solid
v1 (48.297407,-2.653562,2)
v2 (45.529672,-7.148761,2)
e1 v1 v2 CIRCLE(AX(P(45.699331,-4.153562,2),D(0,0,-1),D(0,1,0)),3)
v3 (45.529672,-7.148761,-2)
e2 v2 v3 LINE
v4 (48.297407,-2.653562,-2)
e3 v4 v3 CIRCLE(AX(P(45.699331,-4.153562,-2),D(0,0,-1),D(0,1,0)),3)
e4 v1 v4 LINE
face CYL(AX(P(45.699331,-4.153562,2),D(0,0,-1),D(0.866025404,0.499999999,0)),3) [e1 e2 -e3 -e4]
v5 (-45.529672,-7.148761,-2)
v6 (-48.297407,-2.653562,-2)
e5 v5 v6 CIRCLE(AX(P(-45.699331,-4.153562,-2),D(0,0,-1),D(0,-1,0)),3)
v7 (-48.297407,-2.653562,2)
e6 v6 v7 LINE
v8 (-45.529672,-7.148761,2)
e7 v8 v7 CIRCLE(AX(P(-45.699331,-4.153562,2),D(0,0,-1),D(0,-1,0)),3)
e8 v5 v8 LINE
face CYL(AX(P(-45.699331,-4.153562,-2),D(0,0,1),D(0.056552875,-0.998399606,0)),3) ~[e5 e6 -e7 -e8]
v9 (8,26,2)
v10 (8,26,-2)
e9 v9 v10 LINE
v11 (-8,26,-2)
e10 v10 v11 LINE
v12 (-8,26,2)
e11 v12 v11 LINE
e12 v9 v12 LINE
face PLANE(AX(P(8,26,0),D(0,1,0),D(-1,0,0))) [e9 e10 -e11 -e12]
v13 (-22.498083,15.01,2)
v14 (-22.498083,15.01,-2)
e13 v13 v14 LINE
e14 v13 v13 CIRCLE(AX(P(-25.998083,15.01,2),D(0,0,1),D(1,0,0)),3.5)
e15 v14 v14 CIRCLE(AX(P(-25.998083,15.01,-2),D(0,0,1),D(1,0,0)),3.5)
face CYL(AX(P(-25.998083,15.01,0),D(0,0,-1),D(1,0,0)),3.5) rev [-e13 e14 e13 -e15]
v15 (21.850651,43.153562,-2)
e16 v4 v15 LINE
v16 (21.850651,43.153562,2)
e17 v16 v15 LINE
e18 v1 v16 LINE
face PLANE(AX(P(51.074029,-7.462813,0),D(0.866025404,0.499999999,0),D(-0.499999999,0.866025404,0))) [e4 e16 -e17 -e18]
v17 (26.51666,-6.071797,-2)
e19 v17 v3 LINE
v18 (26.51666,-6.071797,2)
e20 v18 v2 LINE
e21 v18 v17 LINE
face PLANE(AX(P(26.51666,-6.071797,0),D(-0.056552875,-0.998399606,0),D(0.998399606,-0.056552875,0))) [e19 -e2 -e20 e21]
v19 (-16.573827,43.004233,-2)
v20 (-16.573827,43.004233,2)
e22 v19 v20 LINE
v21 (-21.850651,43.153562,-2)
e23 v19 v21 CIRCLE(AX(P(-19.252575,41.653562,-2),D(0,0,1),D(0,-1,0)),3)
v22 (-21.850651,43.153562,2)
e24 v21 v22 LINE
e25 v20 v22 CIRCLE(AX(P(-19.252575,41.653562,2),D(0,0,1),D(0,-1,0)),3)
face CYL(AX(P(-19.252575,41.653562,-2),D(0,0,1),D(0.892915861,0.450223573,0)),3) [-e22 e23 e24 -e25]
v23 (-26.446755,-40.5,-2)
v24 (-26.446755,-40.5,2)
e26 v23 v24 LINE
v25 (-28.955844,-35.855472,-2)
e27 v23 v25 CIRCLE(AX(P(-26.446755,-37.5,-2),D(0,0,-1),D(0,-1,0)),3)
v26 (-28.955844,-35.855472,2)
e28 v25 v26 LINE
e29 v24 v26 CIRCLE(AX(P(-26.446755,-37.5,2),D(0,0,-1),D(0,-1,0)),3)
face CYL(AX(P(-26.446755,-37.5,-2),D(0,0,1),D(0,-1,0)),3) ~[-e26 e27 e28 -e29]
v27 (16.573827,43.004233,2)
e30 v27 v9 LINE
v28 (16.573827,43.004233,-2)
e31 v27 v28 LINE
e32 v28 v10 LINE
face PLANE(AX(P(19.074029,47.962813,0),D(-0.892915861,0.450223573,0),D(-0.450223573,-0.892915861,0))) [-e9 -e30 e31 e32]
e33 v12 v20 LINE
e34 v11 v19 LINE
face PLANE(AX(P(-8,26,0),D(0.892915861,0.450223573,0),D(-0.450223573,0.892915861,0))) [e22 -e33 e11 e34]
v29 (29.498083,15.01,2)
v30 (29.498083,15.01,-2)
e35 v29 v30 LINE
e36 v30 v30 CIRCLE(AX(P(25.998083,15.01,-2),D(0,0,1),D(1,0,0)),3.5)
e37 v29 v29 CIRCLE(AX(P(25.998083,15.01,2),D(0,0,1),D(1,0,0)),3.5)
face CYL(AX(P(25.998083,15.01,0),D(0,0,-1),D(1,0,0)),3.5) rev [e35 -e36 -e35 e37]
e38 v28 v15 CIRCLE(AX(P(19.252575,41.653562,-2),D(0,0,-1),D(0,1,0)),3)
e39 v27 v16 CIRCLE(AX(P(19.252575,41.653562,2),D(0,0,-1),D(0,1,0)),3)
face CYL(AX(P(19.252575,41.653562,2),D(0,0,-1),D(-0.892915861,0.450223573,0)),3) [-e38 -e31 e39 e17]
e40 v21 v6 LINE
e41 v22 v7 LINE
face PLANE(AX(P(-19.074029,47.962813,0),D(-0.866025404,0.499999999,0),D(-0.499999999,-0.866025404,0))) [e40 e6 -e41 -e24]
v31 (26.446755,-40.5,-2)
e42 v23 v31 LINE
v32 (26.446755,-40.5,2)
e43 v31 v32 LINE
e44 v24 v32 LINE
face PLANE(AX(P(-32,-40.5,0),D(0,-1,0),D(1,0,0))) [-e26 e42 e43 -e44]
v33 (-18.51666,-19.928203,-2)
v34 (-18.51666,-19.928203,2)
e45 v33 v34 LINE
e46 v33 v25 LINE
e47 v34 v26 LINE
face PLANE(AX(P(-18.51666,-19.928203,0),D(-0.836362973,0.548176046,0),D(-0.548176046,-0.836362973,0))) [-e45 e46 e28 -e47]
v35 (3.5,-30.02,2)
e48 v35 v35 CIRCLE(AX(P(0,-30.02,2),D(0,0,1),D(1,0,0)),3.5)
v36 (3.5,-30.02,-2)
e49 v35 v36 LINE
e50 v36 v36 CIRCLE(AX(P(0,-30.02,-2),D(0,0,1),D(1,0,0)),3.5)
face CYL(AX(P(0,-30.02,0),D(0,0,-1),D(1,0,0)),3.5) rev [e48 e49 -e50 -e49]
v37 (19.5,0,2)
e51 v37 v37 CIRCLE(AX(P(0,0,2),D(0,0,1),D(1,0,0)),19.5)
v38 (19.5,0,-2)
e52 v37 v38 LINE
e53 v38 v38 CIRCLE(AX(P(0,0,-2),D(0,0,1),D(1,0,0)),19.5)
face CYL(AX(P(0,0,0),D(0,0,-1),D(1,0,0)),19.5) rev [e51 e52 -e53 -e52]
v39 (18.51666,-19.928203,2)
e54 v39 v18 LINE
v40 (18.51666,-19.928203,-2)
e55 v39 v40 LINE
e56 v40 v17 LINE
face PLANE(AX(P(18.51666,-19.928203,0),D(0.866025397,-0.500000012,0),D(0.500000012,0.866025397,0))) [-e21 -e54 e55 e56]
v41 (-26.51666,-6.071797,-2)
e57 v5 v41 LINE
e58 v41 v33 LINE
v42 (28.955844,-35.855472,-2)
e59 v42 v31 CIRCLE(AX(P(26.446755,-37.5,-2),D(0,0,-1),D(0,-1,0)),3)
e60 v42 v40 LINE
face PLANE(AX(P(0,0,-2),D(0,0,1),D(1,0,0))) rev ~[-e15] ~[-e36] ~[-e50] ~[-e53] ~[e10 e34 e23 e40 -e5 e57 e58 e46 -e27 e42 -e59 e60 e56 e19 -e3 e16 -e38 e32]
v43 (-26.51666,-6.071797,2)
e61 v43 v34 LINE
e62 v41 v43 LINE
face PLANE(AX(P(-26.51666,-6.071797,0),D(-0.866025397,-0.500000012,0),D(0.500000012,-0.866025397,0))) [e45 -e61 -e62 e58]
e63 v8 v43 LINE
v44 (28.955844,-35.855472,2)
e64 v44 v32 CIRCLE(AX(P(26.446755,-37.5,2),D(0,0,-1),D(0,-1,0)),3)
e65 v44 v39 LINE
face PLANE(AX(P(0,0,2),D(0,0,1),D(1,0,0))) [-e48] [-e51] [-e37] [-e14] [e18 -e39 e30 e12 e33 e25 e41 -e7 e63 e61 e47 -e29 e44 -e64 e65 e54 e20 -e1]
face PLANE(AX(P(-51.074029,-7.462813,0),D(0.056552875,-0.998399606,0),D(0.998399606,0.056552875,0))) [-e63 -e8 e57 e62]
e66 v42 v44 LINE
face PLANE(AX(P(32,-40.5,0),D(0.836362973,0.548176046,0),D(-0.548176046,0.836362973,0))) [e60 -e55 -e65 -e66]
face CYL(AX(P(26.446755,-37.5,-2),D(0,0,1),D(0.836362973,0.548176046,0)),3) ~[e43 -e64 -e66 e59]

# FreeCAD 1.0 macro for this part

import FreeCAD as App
import Part
import Sketcher
Q = App.Units.Quantity


def edges_at(feature, points):
    """Names of the edges that pass closest to the given points."""
    edges = feature.Shape.Edges
    near = lambda p: min(range(len(edges)), key=lambda i: edges[i].distToShape(Part.Vertex(*p))[0])
    return sorted({f"Edge{near(p) + 1}" for p in points})

doc = App.newDocument("Part")
body = doc.addObject("PartDesign::Body", "Body")

sketch1 = body.newObject("Sketcher::SketchObject", "Sketch")
sketch1.AttachmentSupport = (doc.getObject("XY_Plane"), [""])
sketch1.MapMode = "FlatFace"
sketch1.addGeometry([
    Part.LineSegment(App.Vector(-8, 26, 0), App.Vector(-19.074029, 47.962813, 0)),
    Part.LineSegment(App.Vector(-19.074029, 47.962813, 0), App.Vector(-51.074029, -7.462813, 0)),
    Part.LineSegment(App.Vector(-51.074029, -7.462813, 0), App.Vector(-26.51666, -6.071797, 0)),
    Part.LineSegment(App.Vector(-26.51666, -6.071797, 0), App.Vector(-18.51666, -19.928203, 0)),
    Part.LineSegment(App.Vector(-18.51666, -19.928203, 0), App.Vector(-32, -40.5, 0)),
    Part.LineSegment(App.Vector(-32, -40.5, 0), App.Vector(32, -40.5, 0)),
    Part.LineSegment(App.Vector(32, -40.5, 0), App.Vector(18.51666, -19.928203, 0)),
    Part.LineSegment(App.Vector(18.51666, -19.928203, 0), App.Vector(26.51666, -6.071797, 0)),
    Part.LineSegment(App.Vector(26.51666, -6.071797, 0), App.Vector(51.074029, -7.462813, 0)),
    Part.LineSegment(App.Vector(51.074029, -7.462813, 0), App.Vector(19.074029, 47.962813, 0)),
    Part.LineSegment(App.Vector(19.074029, 47.962813, 0), App.Vector(8, 26, 0)),
    Part.LineSegment(App.Vector(8, 26, 0), App.Vector(-8, 26, 0)),
    Part.Circle(App.Vector(0, -30.02, 0), App.Vector(0, 0, 1), 3.5),
    Part.Circle(App.Vector(-25.998083, 15.01, 0), App.Vector(0, 0, 1), 3.5),
    Part.Circle(App.Vector(0, 0, 0), App.Vector(0, 0, 1), 19.5),
    Part.Circle(App.Vector(25.998083, 15.01, 0), App.Vector(0, 0, 1), 3.5),
], False)
sketch1.addConstraint([
    Sketcher.Constraint("Coincident", 0, 2, 1, 1),
    Sketcher.Constraint("Coincident", 1, 2, 2, 1),
    Sketcher.Constraint("Coincident", 2, 2, 3, 1),
    Sketcher.Constraint("Coincident", 3, 2, 4, 1),
    Sketcher.Constraint("Coincident", 4, 2, 5, 1),
    Sketcher.Constraint("Coincident", 5, 2, 6, 1),
    Sketcher.Constraint("Coincident", 6, 2, 7, 1),
    Sketcher.Constraint("Coincident", 7, 2, 8, 1),
    Sketcher.Constraint("Coincident", 8, 2, 9, 1),
    Sketcher.Constraint("Coincident", 9, 2, 10, 1),
    Sketcher.Constraint("Coincident", 10, 2, 11, 1),
    Sketcher.Constraint("Coincident", 11, 2, 0, 1),
    Sketcher.Constraint("Horizontal", 5),
    Sketcher.Constraint("Horizontal", 11),
    Sketcher.Constraint("Coincident", 14, 3, -1, 1),
    Sketcher.Constraint("Equal", 12, 13),
    Sketcher.Constraint("Equal", 13, 15),
    Sketcher.Constraint("Symmetric", 13, 3, 15, 3, -2),
    Sketcher.Constraint("Symmetric", 3, 2, 6, 2, -2),
    Sketcher.Constraint("Symmetric", 2, 2, 7, 2, -2),
    Sketcher.Constraint("Symmetric", 1, 2, 8, 2, -2),
    Sketcher.Constraint("Symmetric", 0, 2, 9, 2, -2),
    Sketcher.Constraint("PointOnObject", 12, 3, -2),
    Sketcher.Constraint("Parallel", 1, 7),
    Sketcher.Constraint("Equal", 0, 2),
    Sketcher.Constraint("Equal", 2, 4),
    Sketcher.Constraint("Equal", 4, 6),
    Sketcher.Constraint("Equal", 8, 10),
    Sketcher.Constraint("Diameter", 12, 7.0),
    Sketcher.Constraint("Diameter", 14, 39.0),
    Sketcher.Constraint("DistanceX", 5, 1, 5, 2, 64.0),
    Sketcher.Constraint("DistanceX", 11, 2, 11, 1, 16.0),
    Sketcher.Constraint("Angle", 1, Q("-120 deg")),
    Sketcher.Constraint("Distance", 1, 64.0),
    Sketcher.Constraint("Distance", 3, 16.0),
    Sketcher.Constraint("DistanceY", -1, 1, 10, 2, 26.0),
    Sketcher.Constraint("DistanceY", 4, 2, -1, 1, 40.5),
    Sketcher.Constraint("DistanceY", 12, 3, -1, 1, 30.02),
    Sketcher.Constraint("DistanceY", -1, 1, 13, 3, 15.01),
    Sketcher.Constraint("DistanceX", 0, 2, -1, 1, 19.074029),
    Sketcher.Constraint("DistanceX", 2, 2, -1, 1, 26.51666),
    Sketcher.Constraint("DistanceX", 13, 3, -1, 1, 25.998083),
])
pad1 = body.newObject("PartDesign::Pad", "Pad")
pad1.Profile = sketch1
pad1.Length = 4
pad1.Midplane = True
doc.recompute()

fillet = body.newObject("PartDesign::Fillet", "Fillet")
fillet.Base = (pad1, edges_at(pad1, [
    (51.074, -7.463, 0),
    (32, -40.5, 0),
    (-19.074, 47.963, 0),
    (19.074, 47.963, 0),
    (-51.074, -7.463, 0),
    (-32, -40.5, 0),
]))
fillet.Radius = 3

doc.recompute()
